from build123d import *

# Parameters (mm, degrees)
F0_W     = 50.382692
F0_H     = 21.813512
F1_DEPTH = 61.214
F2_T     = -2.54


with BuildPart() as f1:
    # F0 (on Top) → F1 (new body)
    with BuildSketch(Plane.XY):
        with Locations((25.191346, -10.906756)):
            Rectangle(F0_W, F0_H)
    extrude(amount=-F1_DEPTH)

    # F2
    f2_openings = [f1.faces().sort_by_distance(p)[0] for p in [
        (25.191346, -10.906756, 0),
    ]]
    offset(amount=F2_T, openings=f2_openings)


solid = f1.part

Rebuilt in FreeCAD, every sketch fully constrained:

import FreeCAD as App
import Part
import Sketcher
Q = App.Units.Quantity


def faces_at(feature, points):
    """Names of the faces that lie closest to the given points."""
    faces = feature.Shape.Faces
    near = lambda p: min(range(len(faces)), key=lambda i: faces[i].distToShape(Part.Vertex(*p))[0])
    return sorted({f"Face{near(p) + 1}" for p in points})


def add_polygon(sketch, points):
    """Adds a closed chain of lines whose ends are joined by coincident constraints."""
    first, n = sketch.GeometryCount, len(points)
    for a, b in zip(points, points[1:] + points[:1]):
        sketch.addGeometry(Part.LineSegment(App.Vector(*a, 0), App.Vector(*b, 0)), False)
    for i in range(n):
        sketch.addConstraint(Sketcher.Constraint("Coincident", first + i, 2, first + (i + 1) % n, 1))

doc = App.newDocument("Part")
params = doc.addObject("Spreadsheet::Sheet", "Params")
for row, (alias, value) in enumerate([
    ("pad1_length", "2.41 in"),
    ("thickness_wall", "0.1 in"),
], start=1):
    params.set(f"A{row}", alias)
    params.set(f"B{row}", "=" + value)
    params.setAlias(f"B{row}", alias)

body = doc.addObject("PartDesign::Body", "Body")

sketch1 = body.newObject("Sketcher::SketchObject", "Sketch")
sketch1.AttachmentSupport = (doc.getObject("XY_Plane"), [""])
sketch1.MapMode = "FlatFace"
add_polygon(sketch1, [(0, 0), (0, -21.813512), (50.382692, -21.813512), (50.382692, 0)])
sketch1.addConstraint([
    Sketcher.Constraint("Vertical", 0),
    Sketcher.Constraint("Horizontal", 1),
    Sketcher.Constraint("Vertical", 2),
    Sketcher.Constraint("Horizontal", 3),
    Sketcher.Constraint("Coincident", 3, 2, -1, 1),
    Sketcher.Constraint("DistanceY", 0, 2, 0, 1, Q("21.813512 mm")),
    Sketcher.Constraint("DistanceX", 1, 1, 1, 2, Q("50.382692 mm")),
])
pad1 = body.newObject("PartDesign::Pad", "Pad")
pad1.Profile = sketch1
pad1.setExpression("Length", "Params.pad1_length")
pad1.Reversed = True
doc.recompute()

thickness = body.newObject("PartDesign::Thickness", "Thickness")
thickness.Base = (pad1, faces_at(pad1, [(25.191, -10.907, 0)]))
thickness.setExpression("Value", "Params.thickness_wall")
thickness.Reversed = True
thickness.Join = "Arc"

doc.recompute()
